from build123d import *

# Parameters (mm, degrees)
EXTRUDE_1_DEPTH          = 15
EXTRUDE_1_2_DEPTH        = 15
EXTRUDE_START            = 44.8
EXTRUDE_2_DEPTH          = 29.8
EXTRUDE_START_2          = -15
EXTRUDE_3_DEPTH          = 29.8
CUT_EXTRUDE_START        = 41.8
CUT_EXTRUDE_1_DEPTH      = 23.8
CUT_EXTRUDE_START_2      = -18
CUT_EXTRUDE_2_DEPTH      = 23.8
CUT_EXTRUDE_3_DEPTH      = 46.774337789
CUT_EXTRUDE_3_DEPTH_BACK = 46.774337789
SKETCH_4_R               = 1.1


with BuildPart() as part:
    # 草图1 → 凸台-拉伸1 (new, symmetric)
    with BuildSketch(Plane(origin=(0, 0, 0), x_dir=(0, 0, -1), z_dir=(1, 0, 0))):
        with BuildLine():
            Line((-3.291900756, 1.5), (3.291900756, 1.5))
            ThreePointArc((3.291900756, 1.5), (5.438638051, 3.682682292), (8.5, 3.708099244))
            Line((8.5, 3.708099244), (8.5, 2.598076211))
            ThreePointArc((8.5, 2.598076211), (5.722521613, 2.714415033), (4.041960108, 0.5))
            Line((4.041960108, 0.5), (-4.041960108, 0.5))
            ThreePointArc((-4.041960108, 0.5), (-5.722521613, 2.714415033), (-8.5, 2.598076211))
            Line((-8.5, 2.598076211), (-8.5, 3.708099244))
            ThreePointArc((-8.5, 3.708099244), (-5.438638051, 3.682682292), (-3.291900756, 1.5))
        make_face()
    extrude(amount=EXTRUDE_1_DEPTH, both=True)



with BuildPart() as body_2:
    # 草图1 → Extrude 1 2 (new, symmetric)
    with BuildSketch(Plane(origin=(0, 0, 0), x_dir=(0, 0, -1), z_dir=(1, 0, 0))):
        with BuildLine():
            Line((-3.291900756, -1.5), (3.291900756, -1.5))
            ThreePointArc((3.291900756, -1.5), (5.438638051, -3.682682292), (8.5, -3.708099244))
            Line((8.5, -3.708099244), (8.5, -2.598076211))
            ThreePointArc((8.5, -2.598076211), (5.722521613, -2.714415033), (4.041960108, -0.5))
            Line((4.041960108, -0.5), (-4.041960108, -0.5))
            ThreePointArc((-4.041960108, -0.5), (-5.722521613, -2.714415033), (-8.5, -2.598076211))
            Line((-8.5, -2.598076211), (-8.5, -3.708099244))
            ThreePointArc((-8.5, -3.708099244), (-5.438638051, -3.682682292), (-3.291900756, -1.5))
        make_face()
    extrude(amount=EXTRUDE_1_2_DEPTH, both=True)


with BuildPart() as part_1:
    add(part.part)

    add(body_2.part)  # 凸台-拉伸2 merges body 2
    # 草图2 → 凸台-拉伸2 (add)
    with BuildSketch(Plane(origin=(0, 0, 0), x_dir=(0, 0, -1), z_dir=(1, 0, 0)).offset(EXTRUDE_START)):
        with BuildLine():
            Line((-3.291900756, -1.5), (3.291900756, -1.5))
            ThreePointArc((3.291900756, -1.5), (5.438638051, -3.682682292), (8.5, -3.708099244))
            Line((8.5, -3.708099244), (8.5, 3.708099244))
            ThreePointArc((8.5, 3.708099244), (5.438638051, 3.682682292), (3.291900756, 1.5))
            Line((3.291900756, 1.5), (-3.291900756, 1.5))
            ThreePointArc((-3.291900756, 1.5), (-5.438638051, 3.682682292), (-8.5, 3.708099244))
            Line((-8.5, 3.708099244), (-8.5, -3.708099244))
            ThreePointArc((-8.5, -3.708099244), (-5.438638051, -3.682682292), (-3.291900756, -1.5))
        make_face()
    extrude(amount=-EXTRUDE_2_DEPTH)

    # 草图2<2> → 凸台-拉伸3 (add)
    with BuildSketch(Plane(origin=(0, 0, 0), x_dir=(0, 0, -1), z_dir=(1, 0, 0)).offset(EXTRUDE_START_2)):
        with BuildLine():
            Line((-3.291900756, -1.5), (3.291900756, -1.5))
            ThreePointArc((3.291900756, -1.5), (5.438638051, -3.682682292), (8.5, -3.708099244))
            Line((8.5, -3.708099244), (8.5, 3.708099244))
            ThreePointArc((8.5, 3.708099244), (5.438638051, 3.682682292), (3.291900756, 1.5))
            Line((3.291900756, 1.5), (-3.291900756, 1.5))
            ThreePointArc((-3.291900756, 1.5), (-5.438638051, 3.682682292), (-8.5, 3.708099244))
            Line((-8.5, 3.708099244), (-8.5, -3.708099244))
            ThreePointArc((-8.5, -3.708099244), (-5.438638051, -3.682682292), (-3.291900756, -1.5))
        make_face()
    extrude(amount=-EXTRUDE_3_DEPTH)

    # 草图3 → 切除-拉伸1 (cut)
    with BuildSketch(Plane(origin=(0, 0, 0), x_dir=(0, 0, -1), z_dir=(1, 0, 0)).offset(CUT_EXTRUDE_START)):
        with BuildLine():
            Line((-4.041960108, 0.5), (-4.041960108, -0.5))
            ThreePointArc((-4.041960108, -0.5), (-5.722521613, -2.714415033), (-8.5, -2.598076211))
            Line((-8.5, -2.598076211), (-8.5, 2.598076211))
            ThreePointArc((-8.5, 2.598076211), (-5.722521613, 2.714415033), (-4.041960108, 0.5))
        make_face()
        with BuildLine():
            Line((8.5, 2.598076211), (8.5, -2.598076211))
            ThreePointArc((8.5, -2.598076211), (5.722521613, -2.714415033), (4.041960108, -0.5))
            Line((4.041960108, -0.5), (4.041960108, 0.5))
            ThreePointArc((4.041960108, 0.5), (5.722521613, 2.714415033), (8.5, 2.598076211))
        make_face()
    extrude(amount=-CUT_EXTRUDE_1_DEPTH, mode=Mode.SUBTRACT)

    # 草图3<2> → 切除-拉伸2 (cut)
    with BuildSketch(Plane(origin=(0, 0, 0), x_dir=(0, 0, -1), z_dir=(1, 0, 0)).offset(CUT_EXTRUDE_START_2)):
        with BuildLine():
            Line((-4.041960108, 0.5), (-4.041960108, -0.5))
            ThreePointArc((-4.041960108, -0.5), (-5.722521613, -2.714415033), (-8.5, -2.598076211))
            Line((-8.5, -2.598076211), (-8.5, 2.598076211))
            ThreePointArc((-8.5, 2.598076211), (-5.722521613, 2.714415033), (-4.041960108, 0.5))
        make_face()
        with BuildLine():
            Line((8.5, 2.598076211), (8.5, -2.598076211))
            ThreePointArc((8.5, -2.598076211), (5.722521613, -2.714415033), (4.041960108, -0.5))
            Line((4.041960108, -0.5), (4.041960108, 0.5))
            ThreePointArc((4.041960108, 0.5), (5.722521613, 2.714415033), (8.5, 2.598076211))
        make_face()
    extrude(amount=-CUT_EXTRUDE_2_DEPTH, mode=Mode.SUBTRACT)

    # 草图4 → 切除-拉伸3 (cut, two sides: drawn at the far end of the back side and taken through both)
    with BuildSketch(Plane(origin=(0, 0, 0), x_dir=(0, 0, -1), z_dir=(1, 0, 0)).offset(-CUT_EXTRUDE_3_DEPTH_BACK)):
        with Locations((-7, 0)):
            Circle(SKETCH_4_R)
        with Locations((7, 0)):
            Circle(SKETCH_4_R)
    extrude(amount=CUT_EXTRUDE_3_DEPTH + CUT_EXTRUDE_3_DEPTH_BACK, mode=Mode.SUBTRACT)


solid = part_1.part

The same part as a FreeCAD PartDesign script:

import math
import FreeCAD as App
import Part
import Sketcher

V = App.Vector

doc = App.newDocument("Part")
body = doc.addObject("PartDesign::Body", "Body")

# Sketch on YZ plane
sketch1 = body.newObject("Sketcher::SketchObject", "Sketch")
sketch1.AttachmentSupport = (doc.getObject("YZ_Plane"), [""])
sketch1.MapMode = "FlatFace"
sketch1.addGeometry([
    Part.LineSegment(V(1.5, -3.3, 0), V(1.5, 3.3, 0)),  # 0
    Part.ArcOfCircle(Part.Circle(V(0, 7, 0), V(0, 0, 1), 4), math.radians(-68), math.radians(22)),  # 1
    Part.LineSegment(V(3.7, 8.5, 0), V(2.6, 8.5, 0)),  # 2
    Part.ArcOfCircle(Part.Circle(V(0, 7, 0), V(0, 0, 1), 3), math.radians(-80), math.radians(30)),  # 3
    Part.LineSegment(V(0.5, 4, 0), V(0.5, -4, 0)),  # 4
    Part.ArcOfCircle(Part.Circle(V(0, -7, 0), V(0, 0, 1), 3), math.radians(-30), math.radians(80)),  # 5
    Part.LineSegment(V(2.6, -8.5, 0), V(3.7, -8.5, 0)),  # 6
    Part.ArcOfCircle(Part.Circle(V(0, -7, 0), V(0, 0, 1), 4), math.radians(-22), math.radians(68)),  # 7
], False)
sketch1.addConstraint([
    Sketcher.Constraint("Coincident", 0, 2, 1, 1),
    Sketcher.Constraint("Coincident", 1, 2, 2, 1),
    Sketcher.Constraint("Coincident", 2, 2, 3, 2),
    Sketcher.Constraint("Coincident", 3, 1, 4, 1),
    Sketcher.Constraint("Coincident", 4, 2, 5, 2),
    Sketcher.Constraint("Coincident", 5, 1, 6, 1),
    Sketcher.Constraint("Coincident", 6, 2, 7, 1),
    Sketcher.Constraint("Coincident", 7, 2, 0, 1),
    Sketcher.Constraint("Vertical", 0),
    Sketcher.Constraint("Horizontal", 2),
    Sketcher.Constraint("Vertical", 4),
    Sketcher.Constraint("Horizontal", 6),
    Sketcher.Constraint("Coincident", 3, 3, 1, 3),
    Sketcher.Constraint("Coincident", 7, 3, 5, 3),
    Sketcher.Constraint("Equal", 3, 5),
    Sketcher.Constraint("Equal", 1, 7),
    Sketcher.Constraint("Symmetric", 1, 3, 5, 3, -1, 1),
    Sketcher.Constraint("Symmetric", 2, 2, 5, 1, -1),
    Sketcher.Constraint("Radius", 1, 4.0),
    Sketcher.Constraint("Radius", 3, 3.0),
    Sketcher.Constraint("DistanceY", -1, 1, 1, 3, 7.0),
    Sketcher.Constraint("DistanceX", 3, 1, 0, 2, 1.0),
    Sketcher.Constraint("DistanceX", -1, 1, 0, 2, 1.5),
    Sketcher.Constraint("DistanceY", -1, 1, 1, 2, 8.5),
])
pad1 = body.newObject("PartDesign::Pad", "Pad")
pad1.Profile = sketch1
pad1.Length = 30
pad1.Midplane = True
body2 = doc.addObject("PartDesign::Body", "Body001")

# Sketch on YZ plane
sketch2 = body2.newObject("Sketcher::SketchObject", "Sketch001")
sketch2.AttachmentSupport = (doc.getObject("YZ_Plane001"), [""])
sketch2.MapMode = "FlatFace"
sketch2.addGeometry([
    Part.LineSegment(V(-1.5, 3.3, 0), V(-1.5, -3.3, 0)),  # 0
    Part.ArcOfCircle(Part.Circle(V(0, -7, 0), V(0, 0, 1), 4), math.radians(112), math.radians(202)),  # 1
    Part.LineSegment(V(-3.7, -8.5, 0), V(-2.6, -8.5, 0)),  # 2
    Part.ArcOfCircle(Part.Circle(V(0, -7, 0), V(0, 0, 1), 3), math.radians(100), math.radians(210)),  # 3
    Part.LineSegment(V(-0.5, -4, 0), V(-0.5, 4, 0)),  # 4
    Part.ArcOfCircle(Part.Circle(V(0, 7, 0), V(0, 0, 1), 3), math.radians(150), math.radians(260)),  # 5
    Part.LineSegment(V(-2.6, 8.5, 0), V(-3.7, 8.5, 0)),  # 6
    Part.ArcOfCircle(Part.Circle(V(0, 7, 0), V(0, 0, 1), 4), math.radians(158), math.radians(248)),  # 7
], False)
sketch2.addConstraint([
    Sketcher.Constraint("Coincident", 0, 2, 1, 1),
    Sketcher.Constraint("Coincident", 1, 2, 2, 1),
    Sketcher.Constraint("Coincident", 2, 2, 3, 2),
    Sketcher.Constraint("Coincident", 3, 1, 4, 1),
    Sketcher.Constraint("Coincident", 4, 2, 5, 2),
    Sketcher.Constraint("Coincident", 5, 1, 6, 1),
    Sketcher.Constraint("Coincident", 6, 2, 7, 1),
    Sketcher.Constraint("Coincident", 7, 2, 0, 1),
    Sketcher.Constraint("Vertical", 0),
    Sketcher.Constraint("Horizontal", 2),
    Sketcher.Constraint("Vertical", 4),
    Sketcher.Constraint("Horizontal", 6),
    Sketcher.Constraint("Coincident", 3, 3, 1, 3),
    Sketcher.Constraint("Coincident", 7, 3, 5, 3),
    Sketcher.Constraint("Equal", 3, 5),
    Sketcher.Constraint("Equal", 1, 7),
    Sketcher.Constraint("Symmetric", 1, 3, 5, 3, -1, 1),
    Sketcher.Constraint("Symmetric", 2, 2, 5, 1, -1),
    Sketcher.Constraint("Radius", 1, 4.0),
    Sketcher.Constraint("Radius", 3, 3.0),
    Sketcher.Constraint("DistanceY", 1, 3, -1, 1, 7.0),
    Sketcher.Constraint("DistanceX", 0, 2, 3, 1, 1.0),
    Sketcher.Constraint("DistanceX", 0, 2, -1, 1, 1.5),
    Sketcher.Constraint("DistanceY", 1, 2, -1, 1, 8.5),
])
pad2 = body2.newObject("PartDesign::Pad", "Pad001")
pad2.Profile = sketch2
pad2.Length = 30
pad2.Midplane = True
body.AllowCompound = True
doc.recompute()

boolean = body.newObject("PartDesign::Boolean", "Boolean")
boolean.Type = "Fuse"
boolean.addObjects([body2])

# Sketch on YZ plane
sketch3 = body.newObject("Sketcher::SketchObject", "Sketch002")
sketch3.AttachmentSupport = (doc.getObject("YZ_Plane"), [""])
sketch3.MapMode = "FlatFace"
sketch3.AttachmentOffset = App.Placement(V(0, 0, 44.8), App.Rotation())
sketch3.addGeometry([
    Part.LineSegment(V(-1.5, 3.3, 0), V(-1.5, -3.3, 0)),  # 0
    Part.ArcOfCircle(Part.Circle(V(0, -7, 0), V(0, 0, 1), 4), math.radians(112), math.radians(202)),  # 1
    Part.LineSegment(V(-3.7, -8.5, 0), V(3.7, -8.5, 0)),  # 2
    Part.ArcOfCircle(Part.Circle(V(0, -7, 0), V(0, 0, 1), 4), math.radians(-22), math.radians(68)),  # 3
    Part.LineSegment(V(1.5, -3.3, 0), V(1.5, 3.3, 0)),  # 4
    Part.ArcOfCircle(Part.Circle(V(0, 7, 0), V(0, 0, 1), 4), math.radians(-68), math.radians(22)),  # 5
    Part.LineSegment(V(3.7, 8.5, 0), V(-3.7, 8.5, 0)),  # 6
    Part.ArcOfCircle(Part.Circle(V(0, 7, 0), V(0, 0, 1), 4), math.radians(158), math.radians(248)),  # 7
], False)
sketch3.addConstraint([
    Sketcher.Constraint("Coincident", 0, 2, 1, 1),
    Sketcher.Constraint("Coincident", 1, 2, 2, 1),
    Sketcher.Constraint("Coincident", 2, 2, 3, 1),
    Sketcher.Constraint("Coincident", 3, 2, 4, 1),
    Sketcher.Constraint("Coincident", 4, 2, 5, 1),
    Sketcher.Constraint("Coincident", 5, 2, 6, 1),
    Sketcher.Constraint("Coincident", 6, 2, 7, 1),
    Sketcher.Constraint("Coincident", 7, 2, 0, 1),
    Sketcher.Constraint("Vertical", 0),
    Sketcher.Constraint("Horizontal", 2),
    Sketcher.Constraint("Vertical", 4),
    Sketcher.Constraint("Horizontal", 6),
    Sketcher.Constraint("Coincident", 3, 3, 1, 3),
    Sketcher.Constraint("Coincident", 7, 3, 5, 3),
    Sketcher.Constraint("Equal", 1, 3),
    Sketcher.Constraint("Equal", 3, 5),
    Sketcher.Constraint("Equal", 5, 7),
    Sketcher.Constraint("Symmetric", 1, 3, 5, 3, -1, 1),
    Sketcher.Constraint("Symmetric", 0, 2, 3, 2, -2),
    Sketcher.Constraint("Vertical", 2, 2, 5, 2),
    Sketcher.Constraint("Radius", 1, 4.0),
    Sketcher.Constraint("DistanceY", 1, 3, -1, 1, 7.0),
    Sketcher.Constraint("DistanceX", 0, 2, 3, 2, 3.0),
    Sketcher.Constraint("DistanceY", 1, 2, -1, 1, 8.5),
])
pad3 = body.newObject("PartDesign::Pad", "Pad002")
pad3.Profile = sketch3
pad3.Length = 29.8
pad3.Reversed = True

# Sketch on YZ plane
sketch4 = body.newObject("Sketcher::SketchObject", "Sketch003")
sketch4.AttachmentSupport = (doc.getObject("YZ_Plane"), [""])
sketch4.MapMode = "FlatFace"
sketch4.AttachmentOffset = App.Placement(V(0, 0, -15), App.Rotation())
sketch4.addGeometry([
    Part.LineSegment(V(-1.5, 3.3, 0), V(-1.5, -3.3, 0)),  # 0
    Part.ArcOfCircle(Part.Circle(V(0, -7, 0), V(0, 0, 1), 4), math.radians(112), math.radians(202)),  # 1
    Part.LineSegment(V(-3.7, -8.5, 0), V(3.7, -8.5, 0)),  # 2
    Part.ArcOfCircle(Part.Circle(V(0, -7, 0), V(0, 0, 1), 4), math.radians(-22), math.radians(68)),  # 3
    Part.LineSegment(V(1.5, -3.3, 0), V(1.5, 3.3, 0)),  # 4
    Part.ArcOfCircle(Part.Circle(V(0, 7, 0), V(0, 0, 1), 4), math.radians(-68), math.radians(22)),  # 5
    Part.LineSegment(V(3.7, 8.5, 0), V(-3.7, 8.5, 0)),  # 6
    Part.ArcOfCircle(Part.Circle(V(0, 7, 0), V(0, 0, 1), 4), math.radians(158), math.radians(248)),  # 7
], False)
sketch4.addConstraint([
    Sketcher.Constraint("Coincident", 0, 2, 1, 1),
    Sketcher.Constraint("Coincident", 1, 2, 2, 1),
    Sketcher.Constraint("Coincident", 2, 2, 3, 1),
    Sketcher.Constraint("Coincident", 3, 2, 4, 1),
    Sketcher.Constraint("Coincident", 4, 2, 5, 1),
    Sketcher.Constraint("Coincident", 5, 2, 6, 1),
    Sketcher.Constraint("Coincident", 6, 2, 7, 1),
    Sketcher.Constraint("Coincident", 7, 2, 0, 1),
    Sketcher.Constraint("Vertical", 0),
    Sketcher.Constraint("Horizontal", 2),
    Sketcher.Constraint("Vertical", 4),
    Sketcher.Constraint("Horizontal", 6),
    Sketcher.Constraint("Coincident", 3, 3, 1, 3),
    Sketcher.Constraint("Coincident", 7, 3, 5, 3),
    Sketcher.Constraint("Equal", 1, 3),
    Sketcher.Constraint("Equal", 3, 5),
    Sketcher.Constraint("Equal", 5, 7),
    Sketcher.Constraint("Symmetric", 1, 3, 5, 3, -1, 1),
    Sketcher.Constraint("Symmetric", 0, 2, 3, 2, -2),
    Sketcher.Constraint("Vertical", 2, 2, 5, 2),
    Sketcher.Constraint("Radius", 1, 4.0),
    Sketcher.Constraint("DistanceY", 1, 3, -1, 1, 7.0),
    Sketcher.Constraint("DistanceX", 0, 2, 3, 2, 3.0),
    Sketcher.Constraint("DistanceY", 1, 2, -1, 1, 8.5),
])
pad4 = body.newObject("PartDesign::Pad", "Pad003")
pad4.Profile = sketch4
pad4.Length = 29.8
pad4.Reversed = True

# Sketch on YZ plane
sketch5 = body.newObject("Sketcher::SketchObject", "Sketch004")
sketch5.AttachmentSupport = (doc.getObject("YZ_Plane"), [""])
sketch5.MapMode = "FlatFace"
sketch5.AttachmentOffset = App.Placement(V(0, 0, 41.8), App.Rotation())
sketch5.addGeometry([
    Part.LineSegment(V(-0.5, 4, 0), V(0.5, 4, 0)),  # 0
    Part.ArcOfCircle(Part.Circle(V(0, 7, 0), V(0, 0, 1), 3), math.radians(-80), math.radians(30)),  # 1
    Part.LineSegment(V(2.6, 8.5, 0), V(-2.6, 8.5, 0)),  # 2
    Part.ArcOfCircle(Part.Circle(V(0, 7, 0), V(0, 0, 1), 3), math.radians(150), math.radians(260)),  # 3
    Part.LineSegment(V(-2.6, -8.5, 0), V(2.6, -8.5, 0)),  # 4
    Part.ArcOfCircle(Part.Circle(V(0, -7, 0), V(0, 0, 1), 3), math.radians(-30), math.radians(80)),  # 5
    Part.LineSegment(V(0.5, -4, 0), V(-0.5, -4, 0)),  # 6
    Part.ArcOfCircle(Part.Circle(V(0, -7, 0), V(0, 0, 1), 3), math.radians(100), math.radians(210)),  # 7
], False)
sketch5.addConstraint([
    Sketcher.Constraint("Coincident", 0, 2, 1, 1),
    Sketcher.Constraint("Coincident", 1, 2, 2, 1),
    Sketcher.Constraint("Coincident", 2, 2, 3, 1),
    Sketcher.Constraint("Coincident", 3, 2, 0, 1),
    Sketcher.Constraint("Coincident", 4, 2, 5, 1),
    Sketcher.Constraint("Coincident", 5, 2, 6, 1),
    Sketcher.Constraint("Coincident", 6, 2, 7, 1),
    Sketcher.Constraint("Coincident", 7, 2, 4, 1),
    Sketcher.Constraint("Horizontal", 0),
    Sketcher.Constraint("Horizontal", 2),
    Sketcher.Constraint("Horizontal", 4),
    Sketcher.Constraint("Horizontal", 6),
    Sketcher.Constraint("Coincident", 3, 3, 1, 3),
    Sketcher.Constraint("Coincident", 7, 3, 5, 3),
    Sketcher.Constraint("Equal", 1, 3),
    Sketcher.Constraint("Equal", 3, 5),
    Sketcher.Constraint("Equal", 5, 7),
    Sketcher.Constraint("Symmetric", 1, 3, 5, 3, -1, 1),
    Sketcher.Constraint("Symmetric", 1, 2, 4, 2, -1),
    Sketcher.Constraint("Vertical", 0, 2, 5, 2),
    Sketcher.Constraint("Radius", 1, 3.0),
    Sketcher.Constraint("DistanceX", 0, 1, 0, 2, 1.0),
    Sketcher.Constraint("DistanceY", -1, 1, 1, 3, 7.0),
    Sketcher.Constraint("DistanceY", -1, 1, 1, 2, 8.5),
])
pocket1 = body.newObject("PartDesign::Pocket", "Pocket")
pocket1.Profile = sketch5
pocket1.Length = 23.8

# Sketch on YZ plane
sketch6 = body.newObject("Sketcher::SketchObject", "Sketch005")
sketch6.AttachmentSupport = (doc.getObject("YZ_Plane"), [""])
sketch6.MapMode = "FlatFace"
sketch6.AttachmentOffset = App.Placement(V(0, 0, -18), App.Rotation())
sketch6.addGeometry([
    Part.LineSegment(V(-0.5, 4, 0), V(0.5, 4, 0)),  # 0
    Part.ArcOfCircle(Part.Circle(V(0, 7, 0), V(0, 0, 1), 3), math.radians(-80), math.radians(30)),  # 1
    Part.LineSegment(V(2.6, 8.5, 0), V(-2.6, 8.5, 0)),  # 2
    Part.ArcOfCircle(Part.Circle(V(0, 7, 0), V(0, 0, 1), 3), math.radians(150), math.radians(260)),  # 3
    Part.LineSegment(V(-2.6, -8.5, 0), V(2.6, -8.5, 0)),  # 4
    Part.ArcOfCircle(Part.Circle(V(0, -7, 0), V(0, 0, 1), 3), math.radians(-30), math.radians(80)),  # 5
    Part.LineSegment(V(0.5, -4, 0), V(-0.5, -4, 0)),  # 6
    Part.ArcOfCircle(Part.Circle(V(0, -7, 0), V(0, 0, 1), 3), math.radians(100), math.radians(210)),  # 7
], False)
sketch6.addConstraint([
    Sketcher.Constraint("Coincident", 0, 2, 1, 1),
    Sketcher.Constraint("Coincident", 1, 2, 2, 1),
    Sketcher.Constraint("Coincident", 2, 2, 3, 1),
    Sketcher.Constraint("Coincident", 3, 2, 0, 1),
    Sketcher.Constraint("Coincident", 4, 2, 5, 1),
    Sketcher.Constraint("Coincident", 5, 2, 6, 1),
    Sketcher.Constraint("Coincident", 6, 2, 7, 1),
    Sketcher.Constraint("Coincident", 7, 2, 4, 1),
    Sketcher.Constraint("Horizontal", 0),
    Sketcher.Constraint("Horizontal", 2),
    Sketcher.Constraint("Horizontal", 4),
    Sketcher.Constraint("Horizontal", 6),
    Sketcher.Constraint("Coincident", 3, 3, 1, 3),
    Sketcher.Constraint("Coincident", 7, 3, 5, 3),
    Sketcher.Constraint("Equal", 1, 3),
    Sketcher.Constraint("Equal", 3, 5),
    Sketcher.Constraint("Equal", 5, 7),
    Sketcher.Constraint("Symmetric", 1, 3, 5, 3, -1, 1),
    Sketcher.Constraint("Symmetric", 1, 2, 4, 2, -1),
    Sketcher.Constraint("Vertical", 0, 2, 5, 2),
    Sketcher.Constraint("Radius", 1, 3.0),
    Sketcher.Constraint("DistanceX", 0, 1, 0, 2, 1.0),
    Sketcher.Constraint("DistanceY", -1, 1, 1, 3, 7.0),
    Sketcher.Constraint("DistanceY", -1, 1, 1, 2, 8.5),
])
pocket2 = body.newObject("PartDesign::Pocket", "Pocket001")
pocket2.Profile = sketch6
pocket2.Length = 23.8

# Sketch on YZ plane
sketch7 = body.newObject("Sketcher::SketchObject", "Sketch006")
sketch7.AttachmentSupport = (doc.getObject("YZ_Plane"), [""])
sketch7.MapMode = "FlatFace"
sketch7.addGeometry([
    Part.Circle(V(0, 7, 0), V(0, 0, 1), 1.1),
    Part.Circle(V(0, -7, 0), V(0, 0, 1), 1.1),
], False)
sketch7.addConstraint([
    Sketcher.Constraint("Equal", 0, 1),
    Sketcher.Constraint("Symmetric", 0, 3, 1, 3, -1, 1),
    Sketcher.Constraint("PointOnObject", 0, 3, -2),
    Sketcher.Constraint("Diameter", 0, 2.2),
    Sketcher.Constraint("DistanceY", -1, 1, 0, 3, 7.0),
])
pocket3 = body.newObject("PartDesign::Pocket", "Pocket002")
pocket3.Profile = sketch7
pocket3.Type = "ThroughAll"
pocket3.Midplane = True

doc.recompute()
